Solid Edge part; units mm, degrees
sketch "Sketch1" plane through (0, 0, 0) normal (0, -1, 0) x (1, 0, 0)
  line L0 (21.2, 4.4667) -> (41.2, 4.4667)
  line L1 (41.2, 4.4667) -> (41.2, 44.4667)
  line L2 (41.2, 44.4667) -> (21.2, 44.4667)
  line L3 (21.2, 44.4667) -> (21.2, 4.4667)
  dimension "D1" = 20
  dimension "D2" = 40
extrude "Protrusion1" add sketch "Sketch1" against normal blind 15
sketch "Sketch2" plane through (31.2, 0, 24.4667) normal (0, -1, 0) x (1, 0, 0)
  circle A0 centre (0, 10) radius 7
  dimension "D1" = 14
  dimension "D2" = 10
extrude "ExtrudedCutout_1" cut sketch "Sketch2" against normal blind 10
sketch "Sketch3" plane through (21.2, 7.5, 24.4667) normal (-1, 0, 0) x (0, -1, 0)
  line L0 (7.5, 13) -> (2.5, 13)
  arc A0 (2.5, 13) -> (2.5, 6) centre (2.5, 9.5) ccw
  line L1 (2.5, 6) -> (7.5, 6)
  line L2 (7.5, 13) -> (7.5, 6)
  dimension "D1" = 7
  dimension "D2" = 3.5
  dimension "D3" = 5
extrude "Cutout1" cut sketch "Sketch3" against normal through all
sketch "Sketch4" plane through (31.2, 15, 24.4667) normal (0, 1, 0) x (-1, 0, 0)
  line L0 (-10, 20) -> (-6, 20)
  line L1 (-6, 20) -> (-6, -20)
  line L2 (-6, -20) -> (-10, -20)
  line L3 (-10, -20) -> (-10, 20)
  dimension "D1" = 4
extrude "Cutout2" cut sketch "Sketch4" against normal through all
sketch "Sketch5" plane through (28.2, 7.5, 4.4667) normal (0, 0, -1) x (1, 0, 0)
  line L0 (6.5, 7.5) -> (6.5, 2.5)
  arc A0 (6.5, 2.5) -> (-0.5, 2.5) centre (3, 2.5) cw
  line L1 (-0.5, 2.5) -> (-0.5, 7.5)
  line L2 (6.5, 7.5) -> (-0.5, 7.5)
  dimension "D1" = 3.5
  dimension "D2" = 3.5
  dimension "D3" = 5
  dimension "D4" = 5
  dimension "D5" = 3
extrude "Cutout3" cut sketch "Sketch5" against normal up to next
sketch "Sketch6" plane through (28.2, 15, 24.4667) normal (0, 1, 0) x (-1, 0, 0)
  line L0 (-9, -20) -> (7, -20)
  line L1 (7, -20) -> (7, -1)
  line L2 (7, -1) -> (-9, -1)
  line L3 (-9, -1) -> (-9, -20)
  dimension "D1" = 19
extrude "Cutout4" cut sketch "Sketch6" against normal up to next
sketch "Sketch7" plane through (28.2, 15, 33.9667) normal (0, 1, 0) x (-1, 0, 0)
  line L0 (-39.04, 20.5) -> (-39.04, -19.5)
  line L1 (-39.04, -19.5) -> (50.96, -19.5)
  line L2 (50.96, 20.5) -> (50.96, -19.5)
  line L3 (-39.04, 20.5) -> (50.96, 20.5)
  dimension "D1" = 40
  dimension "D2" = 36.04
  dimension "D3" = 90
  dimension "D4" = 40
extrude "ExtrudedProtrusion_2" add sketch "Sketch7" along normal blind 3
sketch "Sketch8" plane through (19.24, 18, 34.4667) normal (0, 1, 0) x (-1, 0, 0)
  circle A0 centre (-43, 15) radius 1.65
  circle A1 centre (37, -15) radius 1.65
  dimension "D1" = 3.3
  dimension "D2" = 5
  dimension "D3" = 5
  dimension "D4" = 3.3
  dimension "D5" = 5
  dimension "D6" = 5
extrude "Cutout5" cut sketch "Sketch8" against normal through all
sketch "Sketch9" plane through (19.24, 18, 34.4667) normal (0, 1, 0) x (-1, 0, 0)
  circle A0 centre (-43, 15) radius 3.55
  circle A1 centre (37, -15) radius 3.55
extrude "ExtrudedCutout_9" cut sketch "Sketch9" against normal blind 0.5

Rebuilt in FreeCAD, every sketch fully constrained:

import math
import FreeCAD as App
import Part
import Sketcher
Q = App.Units.Quantity


def add_polygon(sketch, points):
    """Adds a closed chain of lines whose ends are joined by coincident constraints."""
    first, n = sketch.GeometryCount, len(points)
    for a, b in zip(points, points[1:] + points[:1]):
        sketch.addGeometry(Part.LineSegment(App.Vector(*a, 0), App.Vector(*b, 0)), False)
    for i in range(n):
        sketch.addConstraint(Sketcher.Constraint("Coincident", first + i, 2, first + (i + 1) % n, 1))

doc = App.newDocument("Part")
params = doc.addObject("Spreadsheet::Sheet", "Params")
for row, (alias, value) in enumerate([
    ("sketch1_height", "40 mm"),
    ("pad1_length", "15 mm"),
    ("sketch2_diameter", "14 mm"),
    ("pocket1_length", "10 mm"),
    ("sketch3_radius", "3.5 mm"),
    ("sketch3_width", "5 mm"),
    ("sketch4_width", "4 mm"),
    ("sketch4_height", "40 mm"),
    ("sketch5_radius", "3.5 mm"),
    ("sketch5_height", "5 mm"),
    ("sketch6_width", "16 mm"),
    ("sketch6_height", "19 mm"),
    ("sketch7_width", "90 mm"),
    ("sketch7_height", "40 mm"),
    ("pad2_length", "3 mm"),
    ("sketch8_diameter", "3.3 mm"),
    ("sketch9_diameter", "7.1 mm"),
    ("pocket7_length", "0.5 mm"),
], start=1):
    params.set(f"A{row}", alias)
    params.set(f"B{row}", "=" + value)
    params.setAlias(f"B{row}", alias)

body = doc.addObject("PartDesign::Body", "Body")

# Sketch on XZ plane
sketch1 = body.newObject("Sketcher::SketchObject", "Sketch")
sketch1.AttachmentSupport = (doc.getObject("XZ_Plane"), [""])
sketch1.MapMode = "FlatFace"
add_polygon(sketch1, [(21, 44), (21, 4), (41, 4), (41, 44)])  # lines 0-3
sketch1.addConstraint([
    Sketcher.Constraint("Vertical", 0),
    Sketcher.Constraint("Horizontal", 1),
    Sketcher.Constraint("Vertical", 2),
    Sketcher.Constraint("Horizontal", 3),
    Sketcher.Constraint("DistanceX", -1, 1, 0, 2, Q("21.2 mm")),
    Sketcher.Constraint("DistanceX", -1, 1, 1, 2, Q("41.2 mm")),
    Sketcher.Constraint("DistanceY", 0, 2, 0, 1, Q("40 mm")),
    Sketcher.Constraint("DistanceY", -1, 1, 0, 2, Q("4.4667 mm")),
])
sketch1.setExpression("Constraints[10]", "Params.sketch1_height")
pad1 = body.newObject("PartDesign::Pad", "Pad")
pad1.Profile = sketch1
pad1.setExpression("Length", "Params.pad1_length")
pad1.Reversed = True

# Sketch on XZ plane
sketch2 = body.newObject("Sketcher::SketchObject", "Sketch001")
sketch2.AttachmentSupport = (doc.getObject("XZ_Plane"), [""])
sketch2.MapMode = "FlatFace"
sketch2.addGeometry(Part.Circle(App.Vector(31, 34, 0), App.Vector(0, 0, 1), 7), False)
sketch2.addConstraint([
    Sketcher.Constraint("Diameter", 0, Q("14 mm")),
    Sketcher.Constraint("DistanceX", -1, 1, 0, 3, Q("31.2 mm")),
    Sketcher.Constraint("DistanceY", -1, 1, 0, 3, Q("34.4667 mm")),
])
sketch2.setExpression("Constraints[0]", "Params.sketch2_diameter")
pocket1 = body.newObject("PartDesign::Pocket", "Pocket")
pocket1.Profile = sketch2
pocket1.setExpression("Length", "Params.pocket1_length")

# Sketch on YZ plane
sketch3 = body.newObject("Sketcher::SketchObject", "Sketch002")
sketch3.AttachmentSupport = (doc.getObject("YZ_Plane"), [""])
sketch3.MapMode = "FlatFace"
sketch3.AttachmentOffset = App.Placement(App.Vector(0, 0, 21.2), App.Rotation())
sketch3.addGeometry([
    Part.LineSegment(App.Vector(0, 30.5, 0), App.Vector(0, 37.5, 0)),
    Part.LineSegment(App.Vector(0, 37.5, 0), App.Vector(5, 37.5, 0)),
    Part.ArcOfCircle(Part.Circle(App.Vector(5, 34, 0), App.Vector(0, 0, 1), 3.5), math.radians(-90), math.radians(90)),
    Part.LineSegment(App.Vector(5, 30.5, 0), App.Vector(0, 30.5, 0)),
], False)
sketch3.addConstraint([
    Sketcher.Constraint("Coincident", 0, 2, 1, 1),
    Sketcher.Constraint("Tangent", 1, 2, 2, 2),
    Sketcher.Constraint("Tangent", 2, 1, 3, 1),
    Sketcher.Constraint("Coincident", 3, 2, 0, 1),
    Sketcher.Constraint("Vertical", 0),
    Sketcher.Constraint("Horizontal", 1),
    Sketcher.Constraint("Horizontal", 3),
    Sketcher.Constraint("PointOnObject", 0, 2, -2),
    Sketcher.Constraint("Radius", 2, Q("3.5 mm")),
    Sketcher.Constraint("DistanceX", 1, 1, 1, 2, Q("5 mm")),
    Sketcher.Constraint("DistanceY", -1, 1, 2, 3, Q("33.9667 mm")),
])
sketch3.setExpression("Constraints[8]", "Params.sketch3_radius")
sketch3.setExpression("Constraints[9]", "Params.sketch3_width")
pocket2 = body.newObject("PartDesign::Pocket", "Pocket001")
pocket2.Profile = sketch3
pocket2.Type = "ThroughAll"
pocket2.Reversed = True

# Sketch on XZ plane
sketch4 = body.newObject("Sketcher::SketchObject", "Sketch003")
sketch4.AttachmentSupport = (doc.getObject("XZ_Plane"), [""])
sketch4.MapMode = "FlatFace"
sketch4.AttachmentOffset = App.Placement(App.Vector(0, 0, -15), App.Rotation())
add_polygon(sketch4, [(37.2, 44.5), (41.2, 44.5), (41.2, 4.5), (37.2, 4.5)])  # lines 0-3
sketch4.addConstraint([
    Sketcher.Constraint("Horizontal", 0),
    Sketcher.Constraint("Vertical", 1),
    Sketcher.Constraint("Horizontal", 2),
    Sketcher.Constraint("Vertical", 3),
    Sketcher.Constraint("DistanceX", 0, 1, 0, 2, Q("4 mm")),
    Sketcher.Constraint("DistanceY", 1, 2, 1, 1, Q("40 mm")),
    Sketcher.Constraint("DistanceX", -1, 1, 0, 2, Q("41.2 mm")),
    Sketcher.Constraint("DistanceY", -1, 1, 0, 2, Q("44.4667 mm")),
])
sketch4.setExpression("Constraints[8]", "Params.sketch4_width")
sketch4.setExpression("Constraints[9]", "Params.sketch4_height")
pocket3 = body.newObject("PartDesign::Pocket", "Pocket002")
pocket3.Profile = sketch4
pocket3.Type = "ThroughAll"
pocket3.Reversed = True

# Sketch on XY plane
sketch5 = body.newObject("Sketcher::SketchObject", "Sketch004")
sketch5.AttachmentSupport = (doc.getObject("XY_Plane"), [""])
sketch5.MapMode = "FlatFace"
sketch5.AttachmentOffset = App.Placement(App.Vector(0, 0, 4.4667), App.Rotation())
sketch5.addGeometry([
    Part.LineSegment(App.Vector(34.7, 5, 0), App.Vector(34.7, 0, 0)),
    Part.LineSegment(App.Vector(34.7, 0, 0), App.Vector(27.7, 0, 0)),
    Part.LineSegment(App.Vector(27.7, 0, 0), App.Vector(27.7, 5, 0)),
    Part.ArcOfCircle(Part.Circle(App.Vector(31.2, 5, 0), App.Vector(0, 0, 1), 3.5), math.radians(0), math.radians(180)),
], False)
sketch5.addConstraint([
    Sketcher.Constraint("Coincident", 0, 2, 1, 1),
    Sketcher.Constraint("Coincident", 1, 2, 2, 1),
    Sketcher.Constraint("Tangent", 2, 2, 3, 2),
    Sketcher.Constraint("Tangent", 3, 1, 0, 1),
    Sketcher.Constraint("Vertical", 0),
    Sketcher.Constraint("Horizontal", 1),
    Sketcher.Constraint("Vertical", 2),
    Sketcher.Constraint("PointOnObject", 0, 2, -1),
    Sketcher.Constraint("Radius", 3, Q("3.5 mm")),
    Sketcher.Constraint("DistanceY", 0, 2, 0, 1, Q("5 mm")),
    Sketcher.Constraint("DistanceX", -1, 1, 3, 3, Q("31.2 mm")),
])
sketch5.setExpression("Constraints[8]", "Params.sketch5_radius")
sketch5.setExpression("Constraints[9]", "Params.sketch5_height")
pocket4 = body.newObject("PartDesign::Pocket", "Pocket003")
pocket4.Profile = sketch5
pocket4.Type = "UpToFirst"
pocket4.Reversed = True

# Sketch on XZ plane
sketch6 = body.newObject("Sketcher::SketchObject", "Sketch005")
sketch6.AttachmentSupport = (doc.getObject("XZ_Plane"), [""])
sketch6.MapMode = "FlatFace"
sketch6.AttachmentOffset = App.Placement(App.Vector(0, 0, -15), App.Rotation())
add_polygon(sketch6, [(37, 23), (37, 4), (21, 4), (21, 23)])  # lines 0-3
sketch6.addConstraint([
    Sketcher.Constraint("Vertical", 0),
    Sketcher.Constraint("Horizontal", 1),
    Sketcher.Constraint("Vertical", 2),
    Sketcher.Constraint("Horizontal", 3),
    Sketcher.Constraint("DistanceX", 1, 2, 1, 1, Q("16 mm")),
    Sketcher.Constraint("DistanceY", 0, 2, 0, 1, Q("19 mm")),
    Sketcher.Constraint("DistanceX", -1, 1, 0, 2, Q("37.2 mm")),
    Sketcher.Constraint("DistanceY", -1, 1, 0, 2, Q("4.4667 mm")),
])
sketch6.setExpression("Constraints[8]", "Params.sketch6_width")
sketch6.setExpression("Constraints[9]", "Params.sketch6_height")
pocket5 = body.newObject("PartDesign::Pocket", "Pocket004")
pocket5.Profile = sketch6
pocket5.Type = "UpToFirst"
pocket5.Reversed = True

# Sketch on XZ plane
sketch7 = body.newObject("Sketcher::SketchObject", "Sketch006")
sketch7.AttachmentSupport = (doc.getObject("XZ_Plane"), [""])
sketch7.MapMode = "FlatFace"
sketch7.AttachmentOffset = App.Placement(App.Vector(0, 0, -15), App.Rotation())
add_polygon(sketch7, [(-23, 54), (67, 54), (67, 14), (-23, 14)])  # lines 0-3
sketch7.addConstraint([
    Sketcher.Constraint("Horizontal", 0),
    Sketcher.Constraint("Vertical", 1),
    Sketcher.Constraint("Horizontal", 2),
    Sketcher.Constraint("Vertical", 3),
    Sketcher.Constraint("DistanceX", 0, 1, 0, 2, Q("90 mm")),
    Sketcher.Constraint("DistanceY", 1, 2, 1, 1, Q("40 mm")),
    Sketcher.Constraint("DistanceX", -1, 1, 0, 2, Q("67.24 mm")),
    Sketcher.Constraint("DistanceY", -1, 1, 0, 2, Q("54.4667 mm")),
])
sketch7.setExpression("Constraints[8]", "Params.sketch7_width")
sketch7.setExpression("Constraints[9]", "Params.sketch7_height")
pad2 = body.newObject("PartDesign::Pad", "Pad001")
pad2.Profile = sketch7
pad2.setExpression("Length", "Params.pad2_length")
pad2.Reversed = True

# Sketch on XZ plane
sketch8 = body.newObject("Sketcher::SketchObject", "Sketch007")
sketch8.AttachmentSupport = (doc.getObject("XZ_Plane"), [""])
sketch8.MapMode = "FlatFace"
sketch8.AttachmentOffset = App.Placement(App.Vector(0, 0, -18), App.Rotation())
sketch8.addGeometry([
    Part.Circle(App.Vector(62.2, 49.5, 0), App.Vector(0, 0, 1), 1.6),
    Part.Circle(App.Vector(-17.8, 19.5, 0), App.Vector(0, 0, 1), 1.6),
], False)
sketch8.addConstraint([
    Sketcher.Constraint("Equal", 0, 1),
    Sketcher.Constraint("Diameter", 0, Q("3.3 mm")),
    Sketcher.Constraint("DistanceX", 1, 3, 0, 3, Q("80 mm")),
    Sketcher.Constraint("DistanceY", 1, 3, 0, 3, Q("30 mm")),
    Sketcher.Constraint("DistanceX", -1, 1, 0, 3, Q("62.24 mm")),
    Sketcher.Constraint("DistanceY", -1, 1, 0, 3, Q("49.4667 mm")),
])
sketch8.setExpression("Constraints[1]", "Params.sketch8_diameter")
pocket6 = body.newObject("PartDesign::Pocket", "Pocket005")
pocket6.Profile = sketch8
pocket6.Type = "ThroughAll"
pocket6.Reversed = True

# Sketch on XZ plane
sketch9 = body.newObject("Sketcher::SketchObject", "Sketch008")
sketch9.AttachmentSupport = (doc.getObject("XZ_Plane"), [""])
sketch9.MapMode = "FlatFace"
sketch9.AttachmentOffset = App.Placement(App.Vector(0, 0, -18), App.Rotation())
sketch9.addGeometry([
    Part.Circle(App.Vector(62.2, 49.5, 0), App.Vector(0, 0, 1), 3.5),
    Part.Circle(App.Vector(-17.8, 19.5, 0), App.Vector(0, 0, 1), 3.5),
], False)
sketch9.addConstraint([
    Sketcher.Constraint("Equal", 0, 1),
    Sketcher.Constraint("Diameter", 0, Q("7.1 mm")),
    Sketcher.Constraint("DistanceX", 1, 3, 0, 3, Q("80 mm")),
    Sketcher.Constraint("DistanceY", 1, 3, 0, 3, Q("30 mm")),
    Sketcher.Constraint("DistanceX", -1, 1, 0, 3, Q("62.24 mm")),
    Sketcher.Constraint("DistanceY", -1, 1, 0, 3, Q("49.4667 mm")),
])
sketch9.setExpression("Constraints[1]", "Params.sketch9_diameter")
pocket7 = body.newObject("PartDesign::Pocket", "Pocket006")
pocket7.Profile = sketch9
pocket7.setExpression("Length", "Params.pocket7_length")
pocket7.Reversed = True

doc.recompute()
